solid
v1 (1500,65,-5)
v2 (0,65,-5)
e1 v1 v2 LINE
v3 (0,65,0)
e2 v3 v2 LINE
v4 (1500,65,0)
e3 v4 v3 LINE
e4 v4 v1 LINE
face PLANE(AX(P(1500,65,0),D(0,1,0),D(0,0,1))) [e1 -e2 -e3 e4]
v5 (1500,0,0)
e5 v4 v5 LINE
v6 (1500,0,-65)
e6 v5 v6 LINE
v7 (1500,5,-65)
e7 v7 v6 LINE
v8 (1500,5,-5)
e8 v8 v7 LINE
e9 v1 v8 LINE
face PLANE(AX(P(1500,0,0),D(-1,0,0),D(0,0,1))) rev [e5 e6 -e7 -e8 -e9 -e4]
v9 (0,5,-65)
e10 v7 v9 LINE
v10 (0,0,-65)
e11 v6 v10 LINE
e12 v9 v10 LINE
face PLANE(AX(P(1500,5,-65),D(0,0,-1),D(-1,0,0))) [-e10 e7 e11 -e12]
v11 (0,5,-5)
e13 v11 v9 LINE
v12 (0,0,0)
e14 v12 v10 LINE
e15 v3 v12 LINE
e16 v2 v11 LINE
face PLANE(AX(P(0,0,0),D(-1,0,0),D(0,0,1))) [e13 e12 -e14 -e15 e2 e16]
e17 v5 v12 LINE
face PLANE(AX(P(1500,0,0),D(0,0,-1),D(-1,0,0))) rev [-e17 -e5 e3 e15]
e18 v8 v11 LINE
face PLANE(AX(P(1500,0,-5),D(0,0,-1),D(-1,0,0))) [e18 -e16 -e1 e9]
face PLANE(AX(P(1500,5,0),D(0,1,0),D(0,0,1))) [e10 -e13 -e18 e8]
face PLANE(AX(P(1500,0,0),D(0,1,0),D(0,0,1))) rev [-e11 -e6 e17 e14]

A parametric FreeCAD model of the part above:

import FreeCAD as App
import Part
import Sketcher

V = App.Vector
Q = App.Units.Quantity


def add_polygon(sketch, points):
    """Adds a closed chain of lines whose ends are joined by coincident constraints."""
    first, n = sketch.GeometryCount, len(points)
    for a, b in zip(points, points[1:] + points[:1]):
        sketch.addGeometry(Part.LineSegment(App.Vector(*a, 0), App.Vector(*b, 0)), False)
    for i in range(n):
        sketch.addConstraint(Sketcher.Constraint("Coincident", first + i, 2, first + (i + 1) % n, 1))

doc = App.newDocument("Part")
body = doc.addObject("PartDesign::Body", "Body")

# Sketch on YZ plane
sketch1 = body.newObject("Sketcher::SketchObject", "Sketch")
sketch1.AttachmentSupport = (doc.getObject("YZ_Plane"), [""])
sketch1.MapMode = "FlatFace"
add_polygon(sketch1, [(0, 0), (0, -65), (5, -65), (5, -5), (65, -5), (65, 0)])  # lines 0-5
sketch1.addConstraint(Sketcher.Constraint("Vertical", 0))
sketch1.addConstraint(Sketcher.Constraint("Horizontal", 1))
sketch1.addConstraint(Sketcher.Constraint("Vertical", 2))
sketch1.addConstraint(Sketcher.Constraint("Horizontal", 3))
sketch1.addConstraint(Sketcher.Constraint("Vertical", 4))
sketch1.addConstraint(Sketcher.Constraint("Horizontal", 5))
sketch1.addConstraint(Sketcher.Constraint("Coincident", 5, 2, -1, 1))
sketch1.addConstraint(Sketcher.Constraint("Equal", 5, 0))
sketch1.addConstraint(Sketcher.Constraint("Equal", 3, 2))
sketch1.addConstraint(Sketcher.Constraint("DistanceX", 1, 1, 1, 2, Q("5 mm")))
sketch1.addConstraint(Sketcher.Constraint("DistanceX", 3, 1, 3, 2, Q("60 mm")))
pad1 = body.newObject("PartDesign::Pad", "Pad")
pad1.Profile = sketch1
pad1.Length = 1500

doc.recompute()
